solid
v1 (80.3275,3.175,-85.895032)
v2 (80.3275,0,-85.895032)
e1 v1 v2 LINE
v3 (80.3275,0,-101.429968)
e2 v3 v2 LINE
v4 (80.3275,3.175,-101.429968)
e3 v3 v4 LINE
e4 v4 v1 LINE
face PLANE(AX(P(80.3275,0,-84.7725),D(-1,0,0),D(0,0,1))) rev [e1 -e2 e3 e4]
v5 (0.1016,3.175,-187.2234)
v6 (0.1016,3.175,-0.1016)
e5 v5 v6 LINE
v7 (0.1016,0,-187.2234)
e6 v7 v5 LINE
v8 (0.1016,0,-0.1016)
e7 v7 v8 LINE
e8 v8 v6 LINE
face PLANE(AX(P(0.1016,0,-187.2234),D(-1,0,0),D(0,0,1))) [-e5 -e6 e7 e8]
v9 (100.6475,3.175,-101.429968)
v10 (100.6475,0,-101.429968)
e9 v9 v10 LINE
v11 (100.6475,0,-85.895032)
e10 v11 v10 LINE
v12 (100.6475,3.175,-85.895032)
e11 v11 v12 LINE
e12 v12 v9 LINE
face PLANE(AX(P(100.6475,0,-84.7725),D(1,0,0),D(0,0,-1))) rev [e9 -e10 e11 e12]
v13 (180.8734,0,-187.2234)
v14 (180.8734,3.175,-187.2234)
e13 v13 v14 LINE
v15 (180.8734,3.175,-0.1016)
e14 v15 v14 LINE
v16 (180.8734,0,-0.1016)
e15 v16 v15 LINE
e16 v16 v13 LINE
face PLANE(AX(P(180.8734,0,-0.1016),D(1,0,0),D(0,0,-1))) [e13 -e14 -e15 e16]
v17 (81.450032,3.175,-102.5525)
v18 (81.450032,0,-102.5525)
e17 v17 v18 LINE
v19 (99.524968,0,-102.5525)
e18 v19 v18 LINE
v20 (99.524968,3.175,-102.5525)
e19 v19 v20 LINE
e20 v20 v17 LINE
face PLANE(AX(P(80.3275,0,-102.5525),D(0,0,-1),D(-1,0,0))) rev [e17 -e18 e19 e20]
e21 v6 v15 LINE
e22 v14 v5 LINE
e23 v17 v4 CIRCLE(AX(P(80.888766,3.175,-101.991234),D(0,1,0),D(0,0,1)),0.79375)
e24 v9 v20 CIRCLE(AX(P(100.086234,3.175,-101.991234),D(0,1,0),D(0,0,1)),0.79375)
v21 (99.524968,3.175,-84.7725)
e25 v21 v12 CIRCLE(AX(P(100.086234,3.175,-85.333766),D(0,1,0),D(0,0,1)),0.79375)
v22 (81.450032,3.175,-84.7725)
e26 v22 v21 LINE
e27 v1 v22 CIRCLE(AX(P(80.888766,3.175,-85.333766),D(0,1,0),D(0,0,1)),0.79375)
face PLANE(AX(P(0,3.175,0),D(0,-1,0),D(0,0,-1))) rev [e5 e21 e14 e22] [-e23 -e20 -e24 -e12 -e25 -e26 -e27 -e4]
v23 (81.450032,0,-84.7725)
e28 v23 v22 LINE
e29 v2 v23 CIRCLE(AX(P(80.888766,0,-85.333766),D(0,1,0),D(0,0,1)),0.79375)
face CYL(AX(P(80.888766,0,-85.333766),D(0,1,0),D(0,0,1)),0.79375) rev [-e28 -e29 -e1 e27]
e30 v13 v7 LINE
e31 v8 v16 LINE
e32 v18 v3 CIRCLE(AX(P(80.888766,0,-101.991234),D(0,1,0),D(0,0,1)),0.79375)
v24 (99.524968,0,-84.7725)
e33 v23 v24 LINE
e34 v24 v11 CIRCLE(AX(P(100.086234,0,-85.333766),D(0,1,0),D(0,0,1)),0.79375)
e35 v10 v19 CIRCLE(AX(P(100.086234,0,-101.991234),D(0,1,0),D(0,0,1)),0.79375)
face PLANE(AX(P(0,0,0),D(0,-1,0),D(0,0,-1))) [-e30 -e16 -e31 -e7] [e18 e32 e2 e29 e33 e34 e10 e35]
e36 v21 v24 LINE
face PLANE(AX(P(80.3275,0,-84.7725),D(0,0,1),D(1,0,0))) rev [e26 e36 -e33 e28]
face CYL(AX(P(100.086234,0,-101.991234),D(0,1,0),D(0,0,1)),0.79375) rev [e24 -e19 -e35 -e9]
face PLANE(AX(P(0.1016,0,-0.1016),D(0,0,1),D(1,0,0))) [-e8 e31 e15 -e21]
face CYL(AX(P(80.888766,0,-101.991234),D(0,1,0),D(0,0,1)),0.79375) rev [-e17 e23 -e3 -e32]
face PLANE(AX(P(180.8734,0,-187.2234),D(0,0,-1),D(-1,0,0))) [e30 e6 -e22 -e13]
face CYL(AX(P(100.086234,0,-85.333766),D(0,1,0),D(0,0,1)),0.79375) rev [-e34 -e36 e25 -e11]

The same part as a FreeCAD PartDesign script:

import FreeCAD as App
import Part
import Sketcher

V = App.Vector
Q = App.Units.Quantity


def add_polygon(sketch, points):
    """Adds a closed chain of lines whose ends are joined by coincident constraints."""
    first, n = sketch.GeometryCount, len(points)
    for a, b in zip(points, points[1:] + points[:1]):
        sketch.addGeometry(Part.LineSegment(App.Vector(*a, 0), App.Vector(*b, 0)), False)
    for i in range(n):
        sketch.addConstraint(Sketcher.Constraint("Coincident", first + i, 2, first + (i + 1) % n, 1))

doc = App.newDocument("Part")
params = doc.addObject("Spreadsheet::Sheet", "Params")
for row, (alias, value) in enumerate([
    ("sketch1_width", "7.125 in"),
    ("sketch1_height", "7.375 in"),
    ("pad1_length", "0.125 in"),
    ("sketch2_width", "0.8 in"),
    ("sketch2_height", "0.7 in"),
    ("sketch3_diameter", "0.0625 in"),
    ("pocket2_length", "0.125 in"),
    ("sketch4_width", "7.125 in"),
    ("sketch4_width2", "7.117 in"),
    ("sketch4_height", "7.375 in"),
    ("sketch4_height2", "7.367 in"),
    ("pocket3_length", "0.125 in"),
], start=1):
    params.set(f"A{row}", alias)
    params.set(f"B{row}", "=" + value)
    params.setAlias(f"B{row}", alias)

body = doc.addObject("PartDesign::Body", "Body")

# Sketch on XZ plane
sketch1 = doc.addObject("Sketcher::SketchObject", "Sketch")
body.addObject(sketch1)
sketch1.AttachmentSupport = (doc.XZ_Plane, [""])
sketch1.MapMode = "FlatFace"
add_polygon(sketch1, [(0, -187.325), (0, 0), (180.975, 0), (180.975, -187.325)])  # lines 0-3
sketch1.addConstraint(Sketcher.Constraint("Vertical", 0))
sketch1.addConstraint(Sketcher.Constraint("Horizontal", 1))
sketch1.addConstraint(Sketcher.Constraint("Vertical", 2))
sketch1.addConstraint(Sketcher.Constraint("Horizontal", 3))
sketch1.addConstraint(Sketcher.Constraint("Coincident", 0, 2, -1, 1))
sketch1.addConstraint(Sketcher.Constraint("DistanceX", 1, 1, 1, 2, Q("7.125 in")))
sketch1.addConstraint(Sketcher.Constraint("DistanceY", 0, 1, 0, 2, Q("7.375 in")))
sketch1.setExpression("Constraints[9]", "Params.sketch1_width")
sketch1.setExpression("Constraints[10]", "Params.sketch1_height")
pad1 = doc.addObject("PartDesign::Pad", "Pad")
body.addObject(pad1)
pad1.Profile = sketch1
pad1.setExpression("Length", "Params.pad1_length")
pad1.Reversed = True

# Sketch on XZ plane
sketch2 = doc.addObject("Sketcher::SketchObject", "Sketch001")
body.addObject(sketch2)
sketch2.AttachmentSupport = (doc.XZ_Plane, [""])
sketch2.MapMode = "FlatFace"
sketch2.AttachmentOffset = App.Placement(V(0, 0, -0.125 * 25.4), App.Rotation())
add_polygon(sketch2, [(80.3275, -102.5525), (80.3275, -84.7725), (100.6475, -84.7725), (100.6475, -102.5525)])  # lines 0-3
sketch2.addConstraint(Sketcher.Constraint("Vertical", 0))
sketch2.addConstraint(Sketcher.Constraint("Horizontal", 1))
sketch2.addConstraint(Sketcher.Constraint("Vertical", 2))
sketch2.addConstraint(Sketcher.Constraint("Horizontal", 3))
sketch2.addConstraint(Sketcher.Constraint("DistanceX", 1, 1, 1, 2, Q("0.8 in")))
sketch2.addConstraint(Sketcher.Constraint("DistanceY", 0, 1, 0, 2, Q("0.7 in")))
sketch2.addConstraint(Sketcher.Constraint("DistanceX", -1, 1, 0, 2, Q("3.1625 in")))
sketch2.addConstraint(Sketcher.Constraint("DistanceY", 0, 2, -1, 1, Q("3.3375 in")))
sketch2.setExpression("Constraints[8]", "Params.sketch2_width")
sketch2.setExpression("Constraints[9]", "Params.sketch2_height")
pocket1 = doc.addObject("PartDesign::Pocket", "Pocket")
body.addObject(pocket1)
pocket1.Profile = sketch2
pocket1.Type = "ThroughAll"
pocket1.Reversed = True

# Sketch on XZ plane
sketch3 = doc.addObject("Sketcher::SketchObject", "Sketch002")
body.addObject(sketch3)
sketch3.AttachmentSupport = (doc.XZ_Plane, [""])
sketch3.MapMode = "FlatFace"
sketch3.AttachmentOffset = App.Placement(V(0, 0, -0.125 * 25.4), App.Rotation())
sketch3.addGeometry(Part.Circle(V(80.888766, -101.991234, 0), V(0, 0, 1), 0.79375), False)
sketch3.addGeometry(Part.Circle(V(100.086234, -101.991234, 0), V(0, 0, 1), 0.79375), False)
sketch3.addGeometry(Part.Circle(V(80.888766, -85.333766, 0), V(0, 0, 1), 0.79375), False)
sketch3.addGeometry(Part.Circle(V(100.086234, -85.333766, 0), V(0, 0, 1), 0.79375), False)
sketch3.addConstraint(Sketcher.Constraint("Equal", 0, 1))
sketch3.addConstraint(Sketcher.Constraint("Equal", 1, 2))
sketch3.addConstraint(Sketcher.Constraint("Equal", 2, 3))
sketch3.addConstraint(Sketcher.Constraint("Horizontal", 0, 3, 1, 3))
sketch3.addConstraint(Sketcher.Constraint("Horizontal", 2, 3, 3, 3))
sketch3.addConstraint(Sketcher.Constraint("Vertical", 0, 3, 2, 3))
sketch3.addConstraint(Sketcher.Constraint("Vertical", 1, 3, 3, 3))
sketch3.addConstraint(Sketcher.Constraint("Diameter", 0, Q("0.0625 in")))
sketch3.addConstraint(Sketcher.Constraint("DistanceX", -1, 1, 0, 3, Q("80.888766 mm")))
sketch3.addConstraint(Sketcher.Constraint("DistanceY", 0, 3, -1, 1, Q("101.991234 mm")))
sketch3.addConstraint(Sketcher.Constraint("DistanceX", -1, 1, 1, 3, Q("100.086234 mm")))
sketch3.addConstraint(Sketcher.Constraint("DistanceY", 2, 3, -1, 1, Q("85.333766 mm")))
sketch3.setExpression("Constraints[7]", "Params.sketch3_diameter")
pocket2 = doc.addObject("PartDesign::Pocket", "Pocket001")
body.addObject(pocket2)
pocket2.Profile = sketch3
pocket2.setExpression("Length", "Params.pocket2_length")
pocket2.Reversed = True

# Sketch on XZ plane
sketch4 = doc.addObject("Sketcher::SketchObject", "Sketch003")
body.addObject(sketch4)
sketch4.AttachmentSupport = (doc.XZ_Plane, [""])
sketch4.MapMode = "FlatFace"
sketch4.AttachmentOffset = App.Placement(V(0, 0, -0.125 * 25.4), App.Rotation())
add_polygon(sketch4, [(0, -187.325), (0, 0), (180.975, 0), (180.975, -187.325)])  # lines 0-3
add_polygon(sketch4, [(180.8734, -0.1016), (0.1016, -0.1016), (0.1016, -187.2234), (180.8734, -187.2234)])  # lines 4-7
sketch4.addConstraint(Sketcher.Constraint("Vertical", 0))
sketch4.addConstraint(Sketcher.Constraint("Horizontal", 1))
sketch4.addConstraint(Sketcher.Constraint("Vertical", 2))
sketch4.addConstraint(Sketcher.Constraint("Horizontal", 3))
sketch4.addConstraint(Sketcher.Constraint("Horizontal", 4))
sketch4.addConstraint(Sketcher.Constraint("Vertical", 5))
sketch4.addConstraint(Sketcher.Constraint("Horizontal", 6))
sketch4.addConstraint(Sketcher.Constraint("Vertical", 7))
sketch4.addConstraint(Sketcher.Constraint("Coincident", 0, 2, -1, 1))
sketch4.addConstraint(Sketcher.Constraint("DistanceX", 1, 1, 1, 2, Q("7.125 in")))
sketch4.addConstraint(Sketcher.Constraint("DistanceX", 4, 2, 4, 1, Q("7.117 in")))
sketch4.addConstraint(Sketcher.Constraint("DistanceY", 0, 1, 0, 2, Q("7.375 in")))
sketch4.addConstraint(Sketcher.Constraint("DistanceY", 5, 2, 5, 1, Q("7.367 in")))
sketch4.addConstraint(Sketcher.Constraint("DistanceX", -1, 1, 4, 2, Q("0.004 in")))
sketch4.addConstraint(Sketcher.Constraint("DistanceY", 4, 2, -1, 1, Q("0.004 in")))
sketch4.setExpression("Constraints[17]", "Params.sketch4_width")
sketch4.setExpression("Constraints[18]", "Params.sketch4_width2")
sketch4.setExpression("Constraints[19]", "Params.sketch4_height")
sketch4.setExpression("Constraints[20]", "Params.sketch4_height2")
pocket3 = doc.addObject("PartDesign::Pocket", "Pocket002")
body.addObject(pocket3)
pocket3.Profile = sketch4
pocket3.setExpression("Length", "Params.pocket3_length")
pocket3.Reversed = True

doc.recompute()
